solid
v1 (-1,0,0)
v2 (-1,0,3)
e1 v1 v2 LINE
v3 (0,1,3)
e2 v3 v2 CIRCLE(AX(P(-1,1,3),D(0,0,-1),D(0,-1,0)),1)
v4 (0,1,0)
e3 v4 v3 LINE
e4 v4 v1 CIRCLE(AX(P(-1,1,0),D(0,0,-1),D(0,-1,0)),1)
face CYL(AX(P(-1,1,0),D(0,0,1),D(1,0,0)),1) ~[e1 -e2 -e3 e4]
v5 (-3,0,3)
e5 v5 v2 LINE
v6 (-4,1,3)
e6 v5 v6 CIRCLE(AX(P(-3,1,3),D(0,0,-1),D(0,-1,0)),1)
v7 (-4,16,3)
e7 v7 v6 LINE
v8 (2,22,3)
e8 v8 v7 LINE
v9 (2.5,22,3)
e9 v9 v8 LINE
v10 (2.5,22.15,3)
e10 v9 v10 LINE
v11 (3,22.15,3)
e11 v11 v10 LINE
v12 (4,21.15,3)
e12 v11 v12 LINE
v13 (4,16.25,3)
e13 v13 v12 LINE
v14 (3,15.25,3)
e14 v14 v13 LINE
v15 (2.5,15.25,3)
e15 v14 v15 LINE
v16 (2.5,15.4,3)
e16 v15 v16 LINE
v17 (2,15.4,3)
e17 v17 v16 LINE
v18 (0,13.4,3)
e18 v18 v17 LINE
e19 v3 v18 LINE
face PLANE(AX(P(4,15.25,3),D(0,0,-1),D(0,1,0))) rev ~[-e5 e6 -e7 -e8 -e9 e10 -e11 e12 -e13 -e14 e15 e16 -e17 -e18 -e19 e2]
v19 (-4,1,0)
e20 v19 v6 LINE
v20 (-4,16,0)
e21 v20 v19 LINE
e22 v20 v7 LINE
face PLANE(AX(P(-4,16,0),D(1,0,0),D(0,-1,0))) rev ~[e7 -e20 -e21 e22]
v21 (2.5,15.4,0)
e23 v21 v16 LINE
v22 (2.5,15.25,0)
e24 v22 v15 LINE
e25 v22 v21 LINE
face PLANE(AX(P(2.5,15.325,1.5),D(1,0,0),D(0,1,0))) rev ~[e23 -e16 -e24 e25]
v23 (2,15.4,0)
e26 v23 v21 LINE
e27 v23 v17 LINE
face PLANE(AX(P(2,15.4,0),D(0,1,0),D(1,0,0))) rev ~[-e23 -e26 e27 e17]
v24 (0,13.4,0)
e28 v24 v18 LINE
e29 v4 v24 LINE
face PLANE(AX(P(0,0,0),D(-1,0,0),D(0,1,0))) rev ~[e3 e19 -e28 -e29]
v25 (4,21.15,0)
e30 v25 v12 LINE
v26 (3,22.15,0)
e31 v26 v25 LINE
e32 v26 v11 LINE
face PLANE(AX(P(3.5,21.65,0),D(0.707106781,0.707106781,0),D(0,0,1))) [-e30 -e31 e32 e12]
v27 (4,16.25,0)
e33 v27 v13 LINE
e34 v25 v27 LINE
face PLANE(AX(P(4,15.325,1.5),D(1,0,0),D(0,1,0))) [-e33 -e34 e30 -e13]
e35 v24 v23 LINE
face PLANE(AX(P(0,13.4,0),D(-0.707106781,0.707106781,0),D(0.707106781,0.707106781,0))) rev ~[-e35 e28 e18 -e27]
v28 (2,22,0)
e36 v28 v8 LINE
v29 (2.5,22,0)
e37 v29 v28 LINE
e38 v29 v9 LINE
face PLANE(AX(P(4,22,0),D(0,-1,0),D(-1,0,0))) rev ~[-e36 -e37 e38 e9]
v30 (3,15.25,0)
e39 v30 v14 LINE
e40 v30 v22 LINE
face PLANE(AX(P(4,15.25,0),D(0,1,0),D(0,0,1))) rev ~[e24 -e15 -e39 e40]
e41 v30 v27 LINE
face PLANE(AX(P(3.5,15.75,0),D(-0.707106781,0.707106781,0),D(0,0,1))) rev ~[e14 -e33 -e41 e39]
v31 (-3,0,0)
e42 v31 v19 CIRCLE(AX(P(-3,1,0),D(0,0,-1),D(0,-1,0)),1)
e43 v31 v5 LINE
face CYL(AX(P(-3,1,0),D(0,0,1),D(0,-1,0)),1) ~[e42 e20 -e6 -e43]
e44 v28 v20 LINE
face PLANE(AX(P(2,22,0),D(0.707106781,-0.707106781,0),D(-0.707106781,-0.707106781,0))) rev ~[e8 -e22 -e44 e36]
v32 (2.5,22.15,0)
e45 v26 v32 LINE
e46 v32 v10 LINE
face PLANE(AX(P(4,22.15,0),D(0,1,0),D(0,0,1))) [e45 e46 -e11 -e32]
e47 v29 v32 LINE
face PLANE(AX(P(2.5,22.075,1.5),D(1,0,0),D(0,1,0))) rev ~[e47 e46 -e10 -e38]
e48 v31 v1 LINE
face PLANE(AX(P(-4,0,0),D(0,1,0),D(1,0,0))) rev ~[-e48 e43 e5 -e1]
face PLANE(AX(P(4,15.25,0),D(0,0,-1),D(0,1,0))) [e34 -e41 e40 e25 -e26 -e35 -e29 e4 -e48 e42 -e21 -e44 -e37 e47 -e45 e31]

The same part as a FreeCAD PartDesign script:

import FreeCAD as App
import Part
import Sketcher
Q = App.Units.Quantity


def edges_at(feature, points):
    """Names of the edges that pass closest to the given points."""
    edges = feature.Shape.Edges
    near = lambda p: min(range(len(edges)), key=lambda i: edges[i].distToShape(Part.Vertex(*p))[0])
    return sorted({f"Edge{near(p) + 1}" for p in points})

doc = App.newDocument("Part")
params = doc.addObject("Spreadsheet::Sheet", "Params")
for row, (alias, value) in enumerate([
    ("sketch1_width", "4 mm"),
    ("sketch1_width2", "2 mm"),
    ("sketch1_height", "16 mm"),
    ("sketch1_height2", "13.4 mm"),
    ("pad1_length", "3 mm"),
    ("sketch2_height", "3 mm"),
    ("sketch2_width", "0.15 mm"),
    ("pad2_length", "1.5 mm"),
    ("chamfer_size", "1 mm"),
    ("fillet_radius", "1 mm"),
], start=1):
    params.set(f"A{row}", alias)
    params.set(f"B{row}", "=" + value)
    params.setAlias(f"B{row}", alias)

body = doc.addObject("PartDesign::Body", "Body")

# Sketch on XY plane
sketch1 = body.newObject("Sketcher::SketchObject", "Sketch")
sketch1.AttachmentSupport = (doc.getObject("XY_Plane"), [""])
sketch1.MapMode = "FlatFace"
sketch1.addGeometry(Part.LineSegment(App.Vector(2, 22, 0), App.Vector(-4, 16, 0)), False)
sketch1.addGeometry(Part.LineSegment(App.Vector(-4, 16, 0), App.Vector(-4, 0, 0)), False)
sketch1.addGeometry(Part.LineSegment(App.Vector(-4, 0, 0), App.Vector(0, 0, 0)), False)
sketch1.addGeometry(Part.LineSegment(App.Vector(0, 0, 0), App.Vector(0, 13.4, 0)), False)
sketch1.addGeometry(Part.LineSegment(App.Vector(0, 13.4, 0), App.Vector(2, 15.4, 0)), False)
sketch1.addGeometry(Part.LineSegment(App.Vector(2, 15.4, 0), App.Vector(4, 15.4, 0)), False)
sketch1.addGeometry(Part.LineSegment(App.Vector(4, 15.4, 0), App.Vector(4, 22, 0)), False)
sketch1.addGeometry(Part.LineSegment(App.Vector(4, 22, 0), App.Vector(2, 22, 0)), False)
sketch1.addConstraint(Sketcher.Constraint("Coincident", 0, 2, 1, 1))
sketch1.addConstraint(Sketcher.Constraint("Coincident", 1, 2, 2, 1))
sketch1.addConstraint(Sketcher.Constraint("Coincident", 2, 2, 3, 1))
sketch1.addConstraint(Sketcher.Constraint("Coincident", 3, 2, 4, 1))
sketch1.addConstraint(Sketcher.Constraint("Coincident", 4, 2, 5, 1))
sketch1.addConstraint(Sketcher.Constraint("Coincident", 5, 2, 6, 1))
sketch1.addConstraint(Sketcher.Constraint("Coincident", 6, 2, 7, 1))
sketch1.addConstraint(Sketcher.Constraint("Coincident", 7, 2, 0, 1))
sketch1.addConstraint(Sketcher.Constraint("Vertical", 1))
sketch1.addConstraint(Sketcher.Constraint("Horizontal", 2))
sketch1.addConstraint(Sketcher.Constraint("Vertical", 3))
sketch1.addConstraint(Sketcher.Constraint("Horizontal", 5))
sketch1.addConstraint(Sketcher.Constraint("Vertical", 6))
sketch1.addConstraint(Sketcher.Constraint("Horizontal", 7))
sketch1.addConstraint(Sketcher.Constraint("Coincident", 2, 2, -1, 1))
sketch1.addConstraint(Sketcher.Constraint("Parallel", 0, 4))
sketch1.addConstraint(Sketcher.Constraint("Vertical", 4, 2, 7, 2))
sketch1.addConstraint(Sketcher.Constraint("DistanceX", 2, 1, 2, 2, Q("4 mm")))
sketch1.addConstraint(Sketcher.Constraint("DistanceX", 5, 1, 5, 2, Q("2 mm")))
sketch1.addConstraint(Sketcher.Constraint("DistanceY", 1, 2, 1, 1, Q("16 mm")))
sketch1.addConstraint(Sketcher.Constraint("Angle", 0, Q("-135 deg")))
sketch1.addConstraint(Sketcher.Constraint("DistanceY", 3, 1, 3, 2, Q("13.4 mm")))
sketch1.addConstraint(Sketcher.Constraint("DistanceX", -1, 1, 4, 2, Q("2 mm")))
sketch1.setExpression("Constraints[17]", "Params.sketch1_width")
sketch1.setExpression("Constraints[18]", "Params.sketch1_width2")
sketch1.setExpression("Constraints[19]", "Params.sketch1_height")
sketch1.setExpression("Constraints[21]", "Params.sketch1_height2")
pad1 = body.newObject("PartDesign::Pad", "Pad")
pad1.Profile = sketch1
pad1.setExpression("Length", "Params.pad1_length")

# Sketch on YZ plane
sketch2 = body.newObject("Sketcher::SketchObject", "Sketch001")
sketch2.AttachmentSupport = (doc.getObject("YZ_Plane"), [""])
sketch2.MapMode = "FlatFace"
sketch2.AttachmentOffset = App.Placement(App.Vector(0, 0, 4), App.Rotation())
sketch2.addGeometry(Part.LineSegment(App.Vector(15.25, 3, 0), App.Vector(15.25, 0, 0)), False)
sketch2.addGeometry(Part.LineSegment(App.Vector(15.25, 0, 0), App.Vector(15.4, 0, 0)), False)
sketch2.addGeometry(Part.LineSegment(App.Vector(15.4, 0, 0), App.Vector(15.4, 3, 0)), False)
sketch2.addGeometry(Part.LineSegment(App.Vector(15.4, 3, 0), App.Vector(15.25, 3, 0)), False)
sketch2.addGeometry(Part.LineSegment(App.Vector(22, 3, 0), App.Vector(22, 0, 0)), False)
sketch2.addGeometry(Part.LineSegment(App.Vector(22, 0, 0), App.Vector(22.15, 0, 0)), False)
sketch2.addGeometry(Part.LineSegment(App.Vector(22.15, 0, 0), App.Vector(22.15, 3, 0)), False)
sketch2.addGeometry(Part.LineSegment(App.Vector(22.15, 3, 0), App.Vector(22, 3, 0)), False)
sketch2.addConstraint(Sketcher.Constraint("Coincident", 0, 2, 1, 1))
sketch2.addConstraint(Sketcher.Constraint("Coincident", 1, 2, 2, 1))
sketch2.addConstraint(Sketcher.Constraint("Coincident", 2, 2, 3, 1))
sketch2.addConstraint(Sketcher.Constraint("Coincident", 3, 2, 0, 1))
sketch2.addConstraint(Sketcher.Constraint("Coincident", 4, 2, 5, 1))
sketch2.addConstraint(Sketcher.Constraint("Coincident", 5, 2, 6, 1))
sketch2.addConstraint(Sketcher.Constraint("Coincident", 6, 2, 7, 1))
sketch2.addConstraint(Sketcher.Constraint("Coincident", 7, 2, 4, 1))
sketch2.addConstraint(Sketcher.Constraint("Vertical", 0))
sketch2.addConstraint(Sketcher.Constraint("Horizontal", 1))
sketch2.addConstraint(Sketcher.Constraint("Vertical", 2))
sketch2.addConstraint(Sketcher.Constraint("Horizontal", 3))
sketch2.addConstraint(Sketcher.Constraint("Vertical", 4))
sketch2.addConstraint(Sketcher.Constraint("Horizontal", 5))
sketch2.addConstraint(Sketcher.Constraint("Vertical", 6))
sketch2.addConstraint(Sketcher.Constraint("Horizontal", 7))
sketch2.addConstraint(Sketcher.Constraint("PointOnObject", 0, 2, -1))
sketch2.addConstraint(Sketcher.Constraint("PointOnObject", 4, 2, -1))
sketch2.addConstraint(Sketcher.Constraint("Horizontal", 3, 2, 6, 2))
sketch2.addConstraint(Sketcher.Constraint("Equal", 3, 5))
sketch2.addConstraint(Sketcher.Constraint("DistanceY", 0, 2, 0, 1, Q("3 mm")))
sketch2.addConstraint(Sketcher.Constraint("DistanceX", -1, 1, 4, 2, Q("22 mm")))
sketch2.addConstraint(Sketcher.Constraint("DistanceX", 1, 1, 1, 2, Q("0.15 mm")))
sketch2.addConstraint(Sketcher.Constraint("DistanceX", -1, 1, 1, 2, Q("15.4 mm")))
sketch2.setExpression("Constraints[20]", "Params.sketch2_height")
sketch2.setExpression("Constraints[22]", "Params.sketch2_width")
pad2 = body.newObject("PartDesign::Pad", "Pad001")
pad2.Profile = sketch2
pad2.setExpression("Length", "Params.pad2_length")
pad2.Reversed = True
doc.recompute()

chamfer = body.newObject("PartDesign::Chamfer", "Chamfer")
chamfer.Base = (pad2, edges_at(pad2, [(4, 15.25, 1.5), (4, 22.15, 1.5)]))
chamfer.setExpression("Size", "Params.chamfer_size")
doc.recompute()

fillet = body.newObject("PartDesign::Fillet", "Fillet")
fillet.Base = (chamfer, edges_at(chamfer, [(0, 0, 1.5), (-4, 0, 1.5)]))
fillet.setExpression("Radius", "Params.fillet_radius")

doc.recompute()
